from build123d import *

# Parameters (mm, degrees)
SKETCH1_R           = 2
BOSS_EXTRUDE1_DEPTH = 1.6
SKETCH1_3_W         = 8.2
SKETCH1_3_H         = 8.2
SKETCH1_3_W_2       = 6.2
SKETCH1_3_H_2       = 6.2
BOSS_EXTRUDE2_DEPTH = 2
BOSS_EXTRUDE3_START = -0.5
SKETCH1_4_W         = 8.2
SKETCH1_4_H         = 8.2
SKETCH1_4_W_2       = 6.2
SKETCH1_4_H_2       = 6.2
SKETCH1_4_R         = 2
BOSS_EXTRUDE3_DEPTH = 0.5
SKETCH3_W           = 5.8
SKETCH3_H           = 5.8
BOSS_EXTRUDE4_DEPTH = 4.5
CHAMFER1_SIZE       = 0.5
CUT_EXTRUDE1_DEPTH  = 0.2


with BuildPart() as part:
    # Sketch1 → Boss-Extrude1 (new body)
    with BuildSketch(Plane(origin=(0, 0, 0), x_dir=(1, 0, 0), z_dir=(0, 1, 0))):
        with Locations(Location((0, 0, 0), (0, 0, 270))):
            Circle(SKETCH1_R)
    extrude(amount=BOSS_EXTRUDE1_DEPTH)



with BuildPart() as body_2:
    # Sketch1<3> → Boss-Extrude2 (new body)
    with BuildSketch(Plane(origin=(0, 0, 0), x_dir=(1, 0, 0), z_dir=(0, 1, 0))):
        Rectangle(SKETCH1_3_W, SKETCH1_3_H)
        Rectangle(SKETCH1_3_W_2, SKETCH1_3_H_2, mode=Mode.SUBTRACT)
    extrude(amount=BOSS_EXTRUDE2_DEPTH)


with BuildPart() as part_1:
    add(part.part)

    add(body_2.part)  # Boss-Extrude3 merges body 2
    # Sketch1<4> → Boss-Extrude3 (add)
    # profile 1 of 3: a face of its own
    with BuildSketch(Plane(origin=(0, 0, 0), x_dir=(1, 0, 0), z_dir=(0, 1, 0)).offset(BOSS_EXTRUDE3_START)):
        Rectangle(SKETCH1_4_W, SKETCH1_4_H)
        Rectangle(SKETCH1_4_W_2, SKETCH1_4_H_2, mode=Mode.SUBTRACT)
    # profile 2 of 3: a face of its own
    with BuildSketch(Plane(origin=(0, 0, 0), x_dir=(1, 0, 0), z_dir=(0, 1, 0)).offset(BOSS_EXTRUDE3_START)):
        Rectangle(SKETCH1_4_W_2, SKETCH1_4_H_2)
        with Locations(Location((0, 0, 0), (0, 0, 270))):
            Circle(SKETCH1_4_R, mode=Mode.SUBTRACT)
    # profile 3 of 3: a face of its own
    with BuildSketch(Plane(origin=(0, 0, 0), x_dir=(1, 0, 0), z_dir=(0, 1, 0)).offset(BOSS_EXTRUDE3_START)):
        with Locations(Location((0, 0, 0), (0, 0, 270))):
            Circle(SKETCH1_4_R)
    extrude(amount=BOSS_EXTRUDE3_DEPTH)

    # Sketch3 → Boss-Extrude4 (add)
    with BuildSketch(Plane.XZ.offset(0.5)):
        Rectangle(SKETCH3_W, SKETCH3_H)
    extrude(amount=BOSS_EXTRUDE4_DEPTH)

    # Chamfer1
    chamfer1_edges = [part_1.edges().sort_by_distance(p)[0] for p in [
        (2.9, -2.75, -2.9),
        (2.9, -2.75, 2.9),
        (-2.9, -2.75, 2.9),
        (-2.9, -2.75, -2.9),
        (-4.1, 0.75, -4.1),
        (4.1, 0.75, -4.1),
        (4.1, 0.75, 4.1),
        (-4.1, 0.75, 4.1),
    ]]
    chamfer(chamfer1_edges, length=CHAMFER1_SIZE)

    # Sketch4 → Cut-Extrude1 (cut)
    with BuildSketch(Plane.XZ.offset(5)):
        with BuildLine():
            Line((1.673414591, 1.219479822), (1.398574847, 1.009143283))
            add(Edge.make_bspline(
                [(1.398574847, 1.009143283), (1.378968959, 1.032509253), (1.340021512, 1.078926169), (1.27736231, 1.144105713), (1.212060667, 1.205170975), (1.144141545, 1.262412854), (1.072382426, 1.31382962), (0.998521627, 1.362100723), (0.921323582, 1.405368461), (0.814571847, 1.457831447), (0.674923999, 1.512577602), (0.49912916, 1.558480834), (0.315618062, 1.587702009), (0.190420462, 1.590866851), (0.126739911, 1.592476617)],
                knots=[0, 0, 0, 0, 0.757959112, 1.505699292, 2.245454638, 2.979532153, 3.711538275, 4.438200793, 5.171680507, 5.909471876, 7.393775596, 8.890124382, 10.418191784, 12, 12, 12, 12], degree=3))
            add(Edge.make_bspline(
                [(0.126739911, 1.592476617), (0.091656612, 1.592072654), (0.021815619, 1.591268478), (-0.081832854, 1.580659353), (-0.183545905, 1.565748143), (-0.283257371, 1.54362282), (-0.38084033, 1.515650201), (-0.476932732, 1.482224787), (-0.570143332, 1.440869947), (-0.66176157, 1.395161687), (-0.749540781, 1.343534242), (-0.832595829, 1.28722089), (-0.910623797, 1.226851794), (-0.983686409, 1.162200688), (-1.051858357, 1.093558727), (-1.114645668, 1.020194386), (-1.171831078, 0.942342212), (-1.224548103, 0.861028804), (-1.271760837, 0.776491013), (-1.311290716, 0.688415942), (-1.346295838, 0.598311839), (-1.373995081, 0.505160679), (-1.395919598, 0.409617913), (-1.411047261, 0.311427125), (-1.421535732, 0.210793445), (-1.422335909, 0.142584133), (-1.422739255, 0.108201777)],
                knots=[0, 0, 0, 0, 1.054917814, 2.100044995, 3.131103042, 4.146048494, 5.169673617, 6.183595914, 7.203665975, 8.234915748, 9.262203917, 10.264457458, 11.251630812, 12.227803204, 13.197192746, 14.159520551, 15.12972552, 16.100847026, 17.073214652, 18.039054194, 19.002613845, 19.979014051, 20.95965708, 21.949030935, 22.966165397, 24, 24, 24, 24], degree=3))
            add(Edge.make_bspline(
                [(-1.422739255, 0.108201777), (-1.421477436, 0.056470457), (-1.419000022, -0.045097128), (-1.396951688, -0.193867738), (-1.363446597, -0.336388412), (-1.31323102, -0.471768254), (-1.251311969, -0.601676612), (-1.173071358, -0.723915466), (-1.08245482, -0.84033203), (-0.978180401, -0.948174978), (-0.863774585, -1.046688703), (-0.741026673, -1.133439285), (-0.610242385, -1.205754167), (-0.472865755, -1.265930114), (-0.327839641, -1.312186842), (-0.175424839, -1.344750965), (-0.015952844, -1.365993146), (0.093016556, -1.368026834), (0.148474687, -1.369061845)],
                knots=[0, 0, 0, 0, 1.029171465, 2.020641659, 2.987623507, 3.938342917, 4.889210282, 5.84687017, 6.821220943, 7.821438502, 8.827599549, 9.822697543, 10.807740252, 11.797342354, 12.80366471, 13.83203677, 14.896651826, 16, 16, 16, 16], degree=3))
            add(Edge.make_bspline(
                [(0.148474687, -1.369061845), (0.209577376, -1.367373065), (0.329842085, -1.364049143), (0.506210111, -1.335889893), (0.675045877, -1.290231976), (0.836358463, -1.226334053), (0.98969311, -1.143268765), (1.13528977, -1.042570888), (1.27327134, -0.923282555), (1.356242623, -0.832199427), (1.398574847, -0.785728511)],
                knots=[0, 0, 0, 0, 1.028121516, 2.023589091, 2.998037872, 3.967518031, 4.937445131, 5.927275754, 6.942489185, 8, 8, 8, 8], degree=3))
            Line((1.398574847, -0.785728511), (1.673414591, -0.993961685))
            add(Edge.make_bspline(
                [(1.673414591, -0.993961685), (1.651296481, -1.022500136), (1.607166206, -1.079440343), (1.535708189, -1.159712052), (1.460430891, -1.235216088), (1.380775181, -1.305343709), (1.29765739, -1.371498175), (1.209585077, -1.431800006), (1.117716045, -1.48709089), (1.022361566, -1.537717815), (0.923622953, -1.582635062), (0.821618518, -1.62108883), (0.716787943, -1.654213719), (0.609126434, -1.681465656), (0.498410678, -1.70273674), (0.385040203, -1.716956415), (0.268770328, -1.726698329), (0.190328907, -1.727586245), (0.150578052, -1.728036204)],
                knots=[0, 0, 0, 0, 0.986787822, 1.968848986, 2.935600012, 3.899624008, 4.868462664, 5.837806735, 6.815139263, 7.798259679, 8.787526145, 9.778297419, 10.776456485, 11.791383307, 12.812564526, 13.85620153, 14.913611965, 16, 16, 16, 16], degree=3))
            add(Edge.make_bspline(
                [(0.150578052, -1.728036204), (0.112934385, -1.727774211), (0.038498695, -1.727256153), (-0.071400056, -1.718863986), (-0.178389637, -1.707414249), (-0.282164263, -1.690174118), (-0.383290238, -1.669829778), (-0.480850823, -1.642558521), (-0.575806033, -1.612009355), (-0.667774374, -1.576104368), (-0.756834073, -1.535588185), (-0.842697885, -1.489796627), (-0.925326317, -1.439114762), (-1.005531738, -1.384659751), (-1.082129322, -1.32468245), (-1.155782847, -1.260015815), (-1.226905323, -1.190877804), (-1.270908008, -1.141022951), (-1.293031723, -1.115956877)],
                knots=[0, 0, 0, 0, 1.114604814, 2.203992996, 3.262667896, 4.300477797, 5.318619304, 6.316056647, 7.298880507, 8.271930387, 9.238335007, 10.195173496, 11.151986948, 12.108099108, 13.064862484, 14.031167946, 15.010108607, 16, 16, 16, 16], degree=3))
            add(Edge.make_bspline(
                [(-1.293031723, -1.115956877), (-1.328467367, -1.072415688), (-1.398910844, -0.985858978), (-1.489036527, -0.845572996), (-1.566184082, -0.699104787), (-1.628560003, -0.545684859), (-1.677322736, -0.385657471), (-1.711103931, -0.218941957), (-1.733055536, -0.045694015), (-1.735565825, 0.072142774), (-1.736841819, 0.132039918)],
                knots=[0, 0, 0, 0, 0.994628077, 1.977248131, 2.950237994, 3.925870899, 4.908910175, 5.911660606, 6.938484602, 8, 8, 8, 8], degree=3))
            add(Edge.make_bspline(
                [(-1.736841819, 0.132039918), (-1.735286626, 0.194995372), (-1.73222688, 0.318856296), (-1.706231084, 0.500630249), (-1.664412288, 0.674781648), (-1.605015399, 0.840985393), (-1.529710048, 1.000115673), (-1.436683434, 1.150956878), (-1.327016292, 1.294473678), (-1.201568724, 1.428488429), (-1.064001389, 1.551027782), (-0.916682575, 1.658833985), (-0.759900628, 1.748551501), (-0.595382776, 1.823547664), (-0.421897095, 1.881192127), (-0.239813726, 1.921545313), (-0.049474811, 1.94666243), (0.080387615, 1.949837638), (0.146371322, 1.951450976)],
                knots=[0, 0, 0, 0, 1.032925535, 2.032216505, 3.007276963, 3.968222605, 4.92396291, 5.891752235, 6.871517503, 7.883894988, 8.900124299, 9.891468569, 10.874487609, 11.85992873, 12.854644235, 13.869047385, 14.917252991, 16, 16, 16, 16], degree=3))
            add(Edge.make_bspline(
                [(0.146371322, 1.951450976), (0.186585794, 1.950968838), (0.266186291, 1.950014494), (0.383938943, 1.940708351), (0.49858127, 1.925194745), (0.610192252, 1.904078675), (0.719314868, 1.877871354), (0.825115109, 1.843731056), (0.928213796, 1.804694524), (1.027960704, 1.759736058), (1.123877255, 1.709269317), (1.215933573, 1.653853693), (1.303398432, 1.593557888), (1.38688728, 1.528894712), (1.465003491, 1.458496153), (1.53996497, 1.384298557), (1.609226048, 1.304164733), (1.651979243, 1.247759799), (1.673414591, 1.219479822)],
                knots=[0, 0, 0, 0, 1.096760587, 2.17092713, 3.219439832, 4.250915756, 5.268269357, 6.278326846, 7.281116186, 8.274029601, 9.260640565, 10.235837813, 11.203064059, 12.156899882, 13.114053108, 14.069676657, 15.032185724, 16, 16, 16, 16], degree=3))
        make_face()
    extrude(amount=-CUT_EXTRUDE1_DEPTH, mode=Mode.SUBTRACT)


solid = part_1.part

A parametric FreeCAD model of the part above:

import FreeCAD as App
import Part
import Sketcher
from FreeCAD import Vector


def edges_at(feature, points):
    """Names of the edges that pass closest to the given points."""
    edges = feature.Shape.Edges
    near = lambda p: min(range(len(edges)), key=lambda i: edges[i].distToShape(Part.Vertex(*p))[0])
    return sorted({f"Edge{near(p) + 1}" for p in points})

doc = App.newDocument("Part")
body = doc.addObject("PartDesign::Body", "Body")

# Sketch on XZ plane
sketch1 = doc.addObject("Sketcher::SketchObject", "Sketch")
body.addObject(sketch1)
sketch1.AttachmentSupport = (doc.XZ_Plane, [""])
sketch1.MapMode = "FlatFace"
sketch1.addGeometry(Part.Circle(Vector(0, 0, 0), Vector(0, 0, 1), 2), False)
sketch1.addConstraint([
    Sketcher.Constraint("Coincident", 0, 3, -1, 1),
    Sketcher.Constraint("Diameter", 0, 4.0),
])
pad1 = doc.addObject("PartDesign::Pad", "Pad")
body.addObject(pad1)
pad1.Profile = sketch1
pad1.Length = 1.6
pad1.Reversed = True
body2 = doc.addObject("PartDesign::Body", "Body001")

# Sketch on XZ plane
sketch2 = doc.addObject("Sketcher::SketchObject", "Sketch001")
body2.addObject(sketch2)
sketch2.AttachmentSupport = (doc.getObject("XZ_Plane001"), [""])
sketch2.MapMode = "FlatFace"
sketch2.addGeometry([
    Part.LineSegment(Vector(-4, -4, 0), Vector(-4, 4, 0)),  # 0
    Part.LineSegment(Vector(-4, 4, 0), Vector(4, 4, 0)),  # 1
    Part.LineSegment(Vector(4, 4, 0), Vector(4, -4, 0)),  # 2
    Part.LineSegment(Vector(4, -4, 0), Vector(-4, -4, 0)),  # 3
    Part.LineSegment(Vector(3, 3, 0), Vector(-3, 3, 0)),  # 4
    Part.LineSegment(Vector(-3, 3, 0), Vector(-3, -3, 0)),  # 5
    Part.LineSegment(Vector(-3, -3, 0), Vector(3, -3, 0)),  # 6
    Part.LineSegment(Vector(3, -3, 0), Vector(3, 3, 0)),  # 7
], False)
sketch2.addConstraint([
    Sketcher.Constraint("Coincident", 0, 2, 1, 1),
    Sketcher.Constraint("Coincident", 1, 2, 2, 1),
    Sketcher.Constraint("Coincident", 2, 2, 3, 1),
    Sketcher.Constraint("Coincident", 3, 2, 0, 1),
    Sketcher.Constraint("Coincident", 4, 2, 5, 1),
    Sketcher.Constraint("Coincident", 5, 2, 6, 1),
    Sketcher.Constraint("Coincident", 6, 2, 7, 1),
    Sketcher.Constraint("Coincident", 7, 2, 4, 1),
    Sketcher.Constraint("Vertical", 0),
    Sketcher.Constraint("Horizontal", 1),
    Sketcher.Constraint("Vertical", 2),
    Sketcher.Constraint("Horizontal", 3),
    Sketcher.Constraint("Horizontal", 4),
    Sketcher.Constraint("Vertical", 5),
    Sketcher.Constraint("Horizontal", 6),
    Sketcher.Constraint("Vertical", 7),
    Sketcher.Constraint("Symmetric", 0, 2, 2, 2, -1, 1),
    Sketcher.Constraint("Symmetric", 4, 2, 6, 2, -1, 1),
    Sketcher.Constraint("Equal", 3, 0),
    Sketcher.Constraint("Equal", 6, 5),
    Sketcher.Constraint("DistanceX", 1, 1, 1, 2, 8.2),
    Sketcher.Constraint("DistanceX", 4, 2, 4, 1, 6.2),
])
pad2 = doc.addObject("PartDesign::Pad", "Pad001")
body2.addObject(pad2)
pad2.Profile = sketch2
pad2.Length = 2
pad2.Reversed = True
body.AllowCompound = True
doc.recompute()

boolean = doc.addObject("PartDesign::Boolean", "Boolean")
body.addObject(boolean)
boolean.Type = "Fuse"
boolean.addObjects([body2])

# Sketch on XZ plane
sketch3 = doc.addObject("Sketcher::SketchObject", "Sketch002")
body.addObject(sketch3)
sketch3.AttachmentSupport = (doc.XZ_Plane, [""])
sketch3.MapMode = "FlatFace"
sketch3.AttachmentOffset = App.Placement(Vector(0, 0, 0.5), App.Rotation())
sketch3.addGeometry([
    Part.LineSegment(Vector(-4, -4, 0), Vector(-4, 4, 0)),
    Part.LineSegment(Vector(-4, 4, 0), Vector(4, 4, 0)),
    Part.LineSegment(Vector(4, 4, 0), Vector(4, -4, 0)),
    Part.LineSegment(Vector(4, -4, 0), Vector(-4, -4, 0)),
], False)
sketch3.addConstraint([
    Sketcher.Constraint("Coincident", 0, 2, 1, 1),
    Sketcher.Constraint("Coincident", 1, 2, 2, 1),
    Sketcher.Constraint("Coincident", 2, 2, 3, 1),
    Sketcher.Constraint("Coincident", 3, 2, 0, 1),
    Sketcher.Constraint("Vertical", 0),
    Sketcher.Constraint("Horizontal", 1),
    Sketcher.Constraint("Vertical", 2),
    Sketcher.Constraint("Horizontal", 3),
    Sketcher.Constraint("Symmetric", 0, 2, 2, 2, -1, 1),
    Sketcher.Constraint("Equal", 3, 0),
    Sketcher.Constraint("DistanceX", 1, 1, 1, 2, 8.2),
])
pad3 = doc.addObject("PartDesign::Pad", "Pad002")
body.addObject(pad3)
pad3.Profile = sketch3
pad3.Length = 0.5
pad3.Reversed = True

# Sketch on XZ plane
sketch4 = doc.addObject("Sketcher::SketchObject", "Sketch003")
body.addObject(sketch4)
sketch4.AttachmentSupport = (doc.XZ_Plane, [""])
sketch4.MapMode = "FlatFace"
sketch4.AttachmentOffset = App.Placement(Vector(0, 0, 0.5), App.Rotation())
sketch4.addGeometry([
    Part.LineSegment(Vector(-3, 3, 0), Vector(-3, -3, 0)),
    Part.LineSegment(Vector(-3, -3, 0), Vector(3, -3, 0)),
    Part.LineSegment(Vector(3, -3, 0), Vector(3, 3, 0)),
    Part.LineSegment(Vector(3, 3, 0), Vector(-3, 3, 0)),
], False)
sketch4.addConstraint([
    Sketcher.Constraint("Coincident", 0, 2, 1, 1),
    Sketcher.Constraint("Coincident", 1, 2, 2, 1),
    Sketcher.Constraint("Coincident", 2, 2, 3, 1),
    Sketcher.Constraint("Coincident", 3, 2, 0, 1),
    Sketcher.Constraint("Vertical", 0),
    Sketcher.Constraint("Horizontal", 1),
    Sketcher.Constraint("Vertical", 2),
    Sketcher.Constraint("Horizontal", 3),
    Sketcher.Constraint("Symmetric", 0, 2, 2, 2, -1, 1),
    Sketcher.Constraint("Equal", 3, 0),
    Sketcher.Constraint("DistanceX", 1, 1, 1, 2, 5.8),
])
pad4 = doc.addObject("PartDesign::Pad", "Pad003")
body.addObject(pad4)
pad4.Profile = sketch4
pad4.Length = 4.5
doc.recompute()

chamfer = doc.addObject("PartDesign::Chamfer", "Chamfer")
body.addObject(chamfer)
chamfer.Base = (pad4, edges_at(pad4, [
    (2.9, -2.75, -2.9),
    (2.9, -2.75, 2.9),
    (-2.9, -2.75, 2.9),
    (-2.9, -2.75, -2.9),
    (-4.1, 0.75, -4.1),
    (4.1, 0.75, -4.1),
    (4.1, 0.75, 4.1),
    (-4.1, 0.75, 4.1),
]))
chamfer.Size = 0.5

# Sketch on XZ plane
sketch5 = doc.addObject("Sketcher::SketchObject", "Sketch004")
body.addObject(sketch5)
sketch5.AttachmentSupport = (doc.XZ_Plane, [""])
sketch5.MapMode = "FlatFace"
sketch5.AttachmentOffset = App.Placement(Vector(0, 0, 5), App.Rotation())
sketch5.addGeometry([
    Part.LineSegment(Vector(1.398575, 1.009143, 0), Vector(1.673415, 1.21948, 0)),  # 0
    Part.BSplineCurve([Vector(0.146371, 1.951451, 0), Vector(0.186586, 1.950969, 0), Vector(0.266186, 1.950014, 0), Vector(0.383939, 1.940708, 0), Vector(0.498581, 1.925195, 0), Vector(0.610192, 1.904079, 0), Vector(0.719315, 1.877871, 0), Vector(0.825115, 1.843731, 0), Vector(0.928214, 1.804695, 0), Vector(1.027961, 1.759736, 0), Vector(1.123877, 1.709269, 0), Vector(1.215934, 1.653854, 0), Vector(1.303398, 1.593558, 0), Vector(1.386887, 1.528895, 0), Vector(1.465003, 1.458496, 0), Vector(1.539965, 1.384299, 0), Vector(1.609226, 1.304165, 0), Vector(1.651979, 1.24776, 0), Vector(1.673415, 1.21948, 0)], [4, 1, 1, 1, 1, 1, 1, 1, 1, 1, 1, 1, 1, 1, 1, 1, 4], [0, 1.096760587, 2.17092713, 3.219439832, 4.250915756, 5.268269357, 6.278326846, 7.281116186, 8.274029601, 9.260640565, 10.235837813, 11.203064059, 12.156899882, 13.114053108, 14.069676657, 15.032185724, 16], False, 3, [1, 1, 1, 1, 1, 1, 1, 1, 1, 1, 1, 1, 1, 1, 1, 1, 1, 1, 1], False),  # 1
    Part.BSplineCurve([Vector(-1.736842, 0.13204, 0), Vector(-1.735287, 0.194995, 0), Vector(-1.732227, 0.318856, 0), Vector(-1.706231, 0.50063, 0), Vector(-1.664412, 0.674782, 0), Vector(-1.605015, 0.840985, 0), Vector(-1.52971, 1.000116, 0), Vector(-1.436683, 1.150957, 0), Vector(-1.327016, 1.294474, 0), Vector(-1.201569, 1.428488, 0), Vector(-1.064001, 1.551028, 0), Vector(-0.916683, 1.658834, 0), Vector(-0.759901, 1.748552, 0), Vector(-0.595383, 1.823548, 0), Vector(-0.421897, 1.881192, 0), Vector(-0.239814, 1.921545, 0), Vector(-0.049475, 1.946662, 0), Vector(0.080388, 1.949838, 0), Vector(0.146371, 1.951451, 0)], [4, 1, 1, 1, 1, 1, 1, 1, 1, 1, 1, 1, 1, 1, 1, 1, 4], [0, 1.032925535, 2.032216505, 3.007276963, 3.968222605, 4.92396291, 5.891752235, 6.871517503, 7.883894988, 8.900124299, 9.891468569, 10.874487609, 11.85992873, 12.854644235, 13.869047385, 14.917252991, 16], False, 3, [1, 1, 1, 1, 1, 1, 1, 1, 1, 1, 1, 1, 1, 1, 1, 1, 1, 1, 1], False),  # 2
    Part.BSplineCurve([Vector(-1.293032, -1.115957, 0), Vector(-1.328467, -1.072416, 0), Vector(-1.398911, -0.985859, 0), Vector(-1.489037, -0.845573, 0), Vector(-1.566184, -0.699105, 0), Vector(-1.62856, -0.545685, 0), Vector(-1.677323, -0.385657, 0), Vector(-1.711104, -0.218942, 0), Vector(-1.733056, -0.045694, 0), Vector(-1.735566, 0.072143, 0), Vector(-1.736842, 0.13204, 0)], [4, 1, 1, 1, 1, 1, 1, 1, 4], [0, 0.994628077, 1.977248131, 2.950237994, 3.925870899, 4.908910175, 5.911660606, 6.938484602, 8], False, 3, [1, 1, 1, 1, 1, 1, 1, 1, 1, 1, 1], False),  # 3
    Part.BSplineCurve([Vector(0.150578, -1.728036, 0), Vector(0.112934, -1.727774, 0), Vector(0.038499, -1.727256, 0), Vector(-0.0714, -1.718864, 0), Vector(-0.17839, -1.707414, 0), Vector(-0.282164, -1.690174, 0), Vector(-0.38329, -1.66983, 0), Vector(-0.480851, -1.642559, 0), Vector(-0.575806, -1.612009, 0), Vector(-0.667774, -1.576104, 0), Vector(-0.756834, -1.535588, 0), Vector(-0.842698, -1.489797, 0), Vector(-0.925326, -1.439115, 0), Vector(-1.005532, -1.38466, 0), Vector(-1.082129, -1.324682, 0), Vector(-1.155783, -1.260016, 0), Vector(-1.226905, -1.190878, 0), Vector(-1.270908, -1.141023, 0), Vector(-1.293032, -1.115957, 0)], [4, 1, 1, 1, 1, 1, 1, 1, 1, 1, 1, 1, 1, 1, 1, 1, 4], [0, 1.114604814, 2.203992996, 3.262667896, 4.300477797, 5.318619304, 6.316056647, 7.298880507, 8.271930387, 9.238335007, 10.195173496, 11.151986948, 12.108099108, 13.064862484, 14.031167946, 15.010108607, 16], False, 3, [1, 1, 1, 1, 1, 1, 1, 1, 1, 1, 1, 1, 1, 1, 1, 1, 1, 1, 1], False),  # 4
    Part.BSplineCurve([Vector(1.673415, -0.993962, 0), Vector(1.651296, -1.0225, 0), Vector(1.607166, -1.07944, 0), Vector(1.535708, -1.159712, 0), Vector(1.460431, -1.235216, 0), Vector(1.380775, -1.305344, 0), Vector(1.297657, -1.371498, 0), Vector(1.209585, -1.4318, 0), Vector(1.117716, -1.487091, 0), Vector(1.022362, -1.537718, 0), Vector(0.923623, -1.582635, 0), Vector(0.821619, -1.621089, 0), Vector(0.716788, -1.654214, 0), Vector(0.609126, -1.681466, 0), Vector(0.498411, -1.702737, 0), Vector(0.38504, -1.716956, 0), Vector(0.26877, -1.726698, 0), Vector(0.190329, -1.727586, 0), Vector(0.150578, -1.728036, 0)], [4, 1, 1, 1, 1, 1, 1, 1, 1, 1, 1, 1, 1, 1, 1, 1, 4], [0, 0.986787822, 1.968848986, 2.935600012, 3.899624008, 4.868462664, 5.837806735, 6.815139263, 7.798259679, 8.787526145, 9.778297419, 10.776456485, 11.791383307, 12.812564526, 13.85620153, 14.913611965, 16], False, 3, [1, 1, 1, 1, 1, 1, 1, 1, 1, 1, 1, 1, 1, 1, 1, 1, 1, 1, 1], False),  # 5
    Part.LineSegment(Vector(1.673415, -0.993962, 0), Vector(1.398575, -0.785729, 0)),  # 6
    Part.BSplineCurve([Vector(0.148475, -1.369062, 0), Vector(0.209577, -1.367373, 0), Vector(0.329842, -1.364049, 0), Vector(0.50621, -1.33589, 0), Vector(0.675046, -1.290232, 0), Vector(0.836358, -1.226334, 0), Vector(0.989693, -1.143269, 0), Vector(1.13529, -1.042571, 0), Vector(1.273271, -0.923283, 0), Vector(1.356243, -0.832199, 0), Vector(1.398575, -0.785729, 0)], [4, 1, 1, 1, 1, 1, 1, 1, 4], [0, 1.028121516, 2.023589091, 2.998037872, 3.967518031, 4.937445131, 5.927275754, 6.942489185, 8], False, 3, [1, 1, 1, 1, 1, 1, 1, 1, 1, 1, 1], False),  # 7
    Part.BSplineCurve([Vector(-1.422739, 0.108202, 0), Vector(-1.421477, 0.05647, 0), Vector(-1.419, -0.045097, 0), Vector(-1.396952, -0.193868, 0), Vector(-1.363447, -0.336388, 0), Vector(-1.313231, -0.471768, 0), Vector(-1.251312, -0.601677, 0), Vector(-1.173071, -0.723915, 0), Vector(-1.082455, -0.840332, 0), Vector(-0.97818, -0.948175, 0), Vector(-0.863775, -1.046689, 0), Vector(-0.741027, -1.133439, 0), Vector(-0.610242, -1.205754, 0), Vector(-0.472866, -1.26593, 0), Vector(-0.32784, -1.312187, 0), Vector(-0.175425, -1.344751, 0), Vector(-0.015953, -1.365993, 0), Vector(0.093017, -1.368027, 0), Vector(0.148475, -1.369062, 0)], [4, 1, 1, 1, 1, 1, 1, 1, 1, 1, 1, 1, 1, 1, 1, 1, 4], [0, 1.029171465, 2.020641659, 2.987623507, 3.938342917, 4.889210282, 5.84687017, 6.821220943, 7.821438502, 8.827599549, 9.822697543, 10.807740252, 11.797342354, 12.80366471, 13.83203677, 14.896651826, 16], False, 3, [1, 1, 1, 1, 1, 1, 1, 1, 1, 1, 1, 1, 1, 1, 1, 1, 1, 1, 1], False),  # 8
    Part.BSplineCurve([Vector(0.12674, 1.592477, 0), Vector(0.091657, 1.592073, 0), Vector(0.021816, 1.591268, 0), Vector(-0.081833, 1.580659, 0), Vector(-0.183546, 1.565748, 0), Vector(-0.283257, 1.543623, 0), Vector(-0.38084, 1.51565, 0), Vector(-0.476933, 1.482225, 0), Vector(-0.570143, 1.44087, 0), Vector(-0.661762, 1.395162, 0), Vector(-0.749541, 1.343534, 0), Vector(-0.832596, 1.287221, 0), Vector(-0.910624, 1.226852, 0), Vector(-0.983686, 1.162201, 0), Vector(-1.051858, 1.093559, 0), Vector(-1.114646, 1.020194, 0), Vector(-1.171831, 0.942342, 0), Vector(-1.224548, 0.861029, 0), Vector(-1.271761, 0.776491, 0), Vector(-1.311291, 0.688416, 0), Vector(-1.346296, 0.598312, 0), Vector(-1.373995, 0.505161, 0), Vector(-1.39592, 0.409618, 0), Vector(-1.411047, 0.311427, 0), Vector(-1.421536, 0.210793, 0), Vector(-1.422336, 0.142584, 0), Vector(-1.422739, 0.108202, 0)], [4, 1, 1, 1, 1, 1, 1, 1, 1, 1, 1, 1, 1, 1, 1, 1, 1, 1, 1, 1, 1, 1, 1, 1, 4], [0, 1.054917814, 2.100044995, 3.131103042, 4.146048494, 5.169673617, 6.183595914, 7.203665975, 8.234915748, 9.262203917, 10.264457458, 11.251630812, 12.227803204, 13.197192746, 14.159520551, 15.12972552, 16.100847026, 17.073214652, 18.039054194, 19.002613845, 19.979014051, 20.95965708, 21.949030935, 22.966165397, 24], False, 3, [1, 1, 1, 1, 1, 1, 1, 1, 1, 1, 1, 1, 1, 1, 1, 1, 1, 1, 1, 1, 1, 1, 1, 1, 1, 1, 1], False),  # 9
    Part.BSplineCurve([Vector(1.398575, 1.009143, 0), Vector(1.378969, 1.032509, 0), Vector(1.340022, 1.078926, 0), Vector(1.277362, 1.144106, 0), Vector(1.212061, 1.205171, 0), Vector(1.144142, 1.262413, 0), Vector(1.072382, 1.31383, 0), Vector(0.998522, 1.362101, 0), Vector(0.921324, 1.405368, 0), Vector(0.814572, 1.457831, 0), Vector(0.674924, 1.512578, 0), Vector(0.499129, 1.558481, 0), Vector(0.315618, 1.587702, 0), Vector(0.19042, 1.590867, 0), Vector(0.12674, 1.592477, 0)], [4, 1, 1, 1, 1, 1, 1, 1, 1, 1, 1, 1, 4], [0, 0.757959112, 1.505699292, 2.245454638, 2.979532153, 3.711538275, 4.438200793, 5.171680507, 5.909471876, 7.393775596, 8.890124382, 10.418191784, 12], False, 3, [1, 1, 1, 1, 1, 1, 1, 1, 1, 1, 1, 1, 1, 1, 1], False),  # 10
], False)
sketch5.addConstraint([
    Sketcher.Constraint("Block", 1),
    Sketcher.Constraint("Block", 2),
    Sketcher.Constraint("Block", 3),
    Sketcher.Constraint("Block", 4),
    Sketcher.Constraint("Block", 5),
    Sketcher.Constraint("Block", 7),
    Sketcher.Constraint("Block", 8),
    Sketcher.Constraint("Block", 9),
    Sketcher.Constraint("Block", 10),
    Sketcher.Constraint("Coincident", 0, 2, 1, 2),
    Sketcher.Constraint("Coincident", 5, 1, 6, 1),
    Sketcher.Constraint("Coincident", 6, 2, 7, 2),
    Sketcher.Constraint("Coincident", 10, 1, 0, 1),
])
pocket1 = doc.addObject("PartDesign::Pocket", "Pocket")
body.addObject(pocket1)
pocket1.Profile = sketch5
pocket1.Length = 0.2

doc.recompute()
